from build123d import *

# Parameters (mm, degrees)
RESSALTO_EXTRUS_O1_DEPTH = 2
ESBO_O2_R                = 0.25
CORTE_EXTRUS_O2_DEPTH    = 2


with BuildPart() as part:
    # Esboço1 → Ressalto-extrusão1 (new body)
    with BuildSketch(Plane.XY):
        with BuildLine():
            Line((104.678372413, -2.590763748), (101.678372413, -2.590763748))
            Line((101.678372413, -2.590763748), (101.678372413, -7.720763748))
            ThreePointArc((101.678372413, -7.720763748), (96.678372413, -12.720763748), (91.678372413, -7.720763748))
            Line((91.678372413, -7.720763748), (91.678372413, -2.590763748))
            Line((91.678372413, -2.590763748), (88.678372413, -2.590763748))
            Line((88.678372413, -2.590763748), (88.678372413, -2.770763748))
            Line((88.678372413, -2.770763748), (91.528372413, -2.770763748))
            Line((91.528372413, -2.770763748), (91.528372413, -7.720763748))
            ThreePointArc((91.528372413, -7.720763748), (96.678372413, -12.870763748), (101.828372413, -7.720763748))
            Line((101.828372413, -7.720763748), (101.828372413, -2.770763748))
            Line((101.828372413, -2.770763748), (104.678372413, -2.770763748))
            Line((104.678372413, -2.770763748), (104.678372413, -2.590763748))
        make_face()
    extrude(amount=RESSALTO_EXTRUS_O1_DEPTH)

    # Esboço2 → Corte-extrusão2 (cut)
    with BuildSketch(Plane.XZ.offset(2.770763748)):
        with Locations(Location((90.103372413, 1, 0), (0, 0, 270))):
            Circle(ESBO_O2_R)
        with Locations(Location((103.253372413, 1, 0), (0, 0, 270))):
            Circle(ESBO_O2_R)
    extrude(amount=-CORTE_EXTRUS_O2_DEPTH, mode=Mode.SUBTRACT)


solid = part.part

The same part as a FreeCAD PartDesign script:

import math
import FreeCAD as App
import Part
import Sketcher

V = App.Vector

doc = App.newDocument("Part")
body = doc.addObject("PartDesign::Body", "Body")

sketch1 = doc.addObject("Sketcher::SketchObject", "Sketch")
body.addObject(sketch1)
sketch1.AttachmentSupport = (doc.XY_Plane, [""])
sketch1.MapMode = "FlatFace"
sketch1.addGeometry(Part.LineSegment(V(104.68, -2.59, 0), V(101.68, -2.59, 0)), False)
sketch1.addGeometry(Part.LineSegment(V(101.68, -2.59, 0), V(101.68, -7.72, 0)), False)
sketch1.addGeometry(Part.ArcOfCircle(Part.Circle(V(96.68, -7.72, 0), V(0, 0, 1), 5), math.radians(180), math.radians(360)), False)
sketch1.addGeometry(Part.LineSegment(V(91.68, -7.72, 0), V(91.68, -2.59, 0)), False)
sketch1.addGeometry(Part.LineSegment(V(91.68, -2.59, 0), V(88.68, -2.59, 0)), False)
sketch1.addGeometry(Part.LineSegment(V(88.68, -2.59, 0), V(88.68, -2.77, 0)), False)
sketch1.addGeometry(Part.LineSegment(V(88.68, -2.77, 0), V(91.53, -2.77, 0)), False)
sketch1.addGeometry(Part.LineSegment(V(91.53, -2.77, 0), V(91.53, -7.72, 0)), False)
sketch1.addGeometry(Part.ArcOfCircle(Part.Circle(V(96.68, -7.72, 0), V(0, 0, 1), 5.15), math.radians(180), math.radians(360)), False)
sketch1.addGeometry(Part.LineSegment(V(101.83, -7.72, 0), V(101.83, -2.77, 0)), False)
sketch1.addGeometry(Part.LineSegment(V(101.83, -2.77, 0), V(104.68, -2.77, 0)), False)
sketch1.addGeometry(Part.LineSegment(V(104.68, -2.77, 0), V(104.68, -2.59, 0)), False)
sketch1.addConstraint(Sketcher.Constraint("Coincident", 0, 2, 1, 1))
sketch1.addConstraint(Sketcher.Constraint("Tangent", 1, 2, 2, 2))
sketch1.addConstraint(Sketcher.Constraint("Tangent", 2, 1, 3, 1))
sketch1.addConstraint(Sketcher.Constraint("Coincident", 3, 2, 4, 1))
sketch1.addConstraint(Sketcher.Constraint("Coincident", 4, 2, 5, 1))
sketch1.addConstraint(Sketcher.Constraint("Coincident", 5, 2, 6, 1))
sketch1.addConstraint(Sketcher.Constraint("Coincident", 6, 2, 7, 1))
sketch1.addConstraint(Sketcher.Constraint("Tangent", 7, 2, 8, 1))
sketch1.addConstraint(Sketcher.Constraint("Tangent", 8, 2, 9, 1))
sketch1.addConstraint(Sketcher.Constraint("Coincident", 9, 2, 10, 1))
sketch1.addConstraint(Sketcher.Constraint("Coincident", 10, 2, 11, 1))
sketch1.addConstraint(Sketcher.Constraint("Coincident", 11, 2, 0, 1))
sketch1.addConstraint(Sketcher.Constraint("Horizontal", 0))
sketch1.addConstraint(Sketcher.Constraint("Vertical", 1))
sketch1.addConstraint(Sketcher.Constraint("Vertical", 3))
sketch1.addConstraint(Sketcher.Constraint("Horizontal", 4))
sketch1.addConstraint(Sketcher.Constraint("Vertical", 5))
sketch1.addConstraint(Sketcher.Constraint("Horizontal", 6))
sketch1.addConstraint(Sketcher.Constraint("Vertical", 7))
sketch1.addConstraint(Sketcher.Constraint("Vertical", 9))
sketch1.addConstraint(Sketcher.Constraint("Horizontal", 10))
sketch1.addConstraint(Sketcher.Constraint("Vertical", 11))
sketch1.addConstraint(Sketcher.Constraint("Coincident", 8, 3, 2, 3))
sketch1.addConstraint(Sketcher.Constraint("Horizontal", 0, 2, 3, 2))
sketch1.addConstraint(Sketcher.Constraint("Horizontal", 6, 2, 9, 2))
sketch1.addConstraint(Sketcher.Constraint("Equal", 0, 4))
sketch1.addConstraint(Sketcher.Constraint("Radius", 2, 5.0))
sketch1.addConstraint(Sketcher.Constraint("DistanceX", 0, 2, 0, 1, 3.0))
sketch1.addConstraint(Sketcher.Constraint("Radius", 8, 5.15))
sketch1.addConstraint(Sketcher.Constraint("DistanceY", 1, 2, 1, 1, 5.13))
sketch1.addConstraint(Sketcher.Constraint("DistanceY", 5, 2, 5, 1, 0.18))
sketch1.addConstraint(Sketcher.Constraint("DistanceX", -1, 1, 2, 3, 96.678372))
sketch1.addConstraint(Sketcher.Constraint("DistanceY", 2, 3, -1, 1, 7.720764))
pad1 = doc.addObject("PartDesign::Pad", "Pad")
body.addObject(pad1)
pad1.Profile = sketch1
pad1.Length = 2

sketch2 = doc.addObject("Sketcher::SketchObject", "Sketch001")
body.addObject(sketch2)
sketch2.AttachmentSupport = (doc.XZ_Plane, [""])
sketch2.MapMode = "FlatFace"
sketch2.AttachmentOffset = App.Placement(V(0, 0, 2.770764), App.Rotation())
sketch2.addGeometry(Part.Circle(V(90.1, 1, 0), V(0, 0, 1), 0.25), False)
sketch2.addGeometry(Part.Circle(V(103.25, 1, 0), V(0, 0, 1), 0.25), False)
sketch2.addConstraint(Sketcher.Constraint("Equal", 0, 1))
sketch2.addConstraint(Sketcher.Constraint("Horizontal", 0, 3, 1, 3))
sketch2.addConstraint(Sketcher.Constraint("Diameter", 0, 0.5))
sketch2.addConstraint(Sketcher.Constraint("DistanceY", -1, 1, 0, 3, 1.0))
sketch2.addConstraint(Sketcher.Constraint("DistanceX", 0, 3, 1, 3, 13.15))
sketch2.addConstraint(Sketcher.Constraint("DistanceX", -1, 1, 0, 3, 90.103372))
pocket1 = doc.addObject("PartDesign::Pocket", "Pocket")
body.addObject(pocket1)
pocket1.Profile = sketch2
pocket1.Length = 2

doc.recompute()
